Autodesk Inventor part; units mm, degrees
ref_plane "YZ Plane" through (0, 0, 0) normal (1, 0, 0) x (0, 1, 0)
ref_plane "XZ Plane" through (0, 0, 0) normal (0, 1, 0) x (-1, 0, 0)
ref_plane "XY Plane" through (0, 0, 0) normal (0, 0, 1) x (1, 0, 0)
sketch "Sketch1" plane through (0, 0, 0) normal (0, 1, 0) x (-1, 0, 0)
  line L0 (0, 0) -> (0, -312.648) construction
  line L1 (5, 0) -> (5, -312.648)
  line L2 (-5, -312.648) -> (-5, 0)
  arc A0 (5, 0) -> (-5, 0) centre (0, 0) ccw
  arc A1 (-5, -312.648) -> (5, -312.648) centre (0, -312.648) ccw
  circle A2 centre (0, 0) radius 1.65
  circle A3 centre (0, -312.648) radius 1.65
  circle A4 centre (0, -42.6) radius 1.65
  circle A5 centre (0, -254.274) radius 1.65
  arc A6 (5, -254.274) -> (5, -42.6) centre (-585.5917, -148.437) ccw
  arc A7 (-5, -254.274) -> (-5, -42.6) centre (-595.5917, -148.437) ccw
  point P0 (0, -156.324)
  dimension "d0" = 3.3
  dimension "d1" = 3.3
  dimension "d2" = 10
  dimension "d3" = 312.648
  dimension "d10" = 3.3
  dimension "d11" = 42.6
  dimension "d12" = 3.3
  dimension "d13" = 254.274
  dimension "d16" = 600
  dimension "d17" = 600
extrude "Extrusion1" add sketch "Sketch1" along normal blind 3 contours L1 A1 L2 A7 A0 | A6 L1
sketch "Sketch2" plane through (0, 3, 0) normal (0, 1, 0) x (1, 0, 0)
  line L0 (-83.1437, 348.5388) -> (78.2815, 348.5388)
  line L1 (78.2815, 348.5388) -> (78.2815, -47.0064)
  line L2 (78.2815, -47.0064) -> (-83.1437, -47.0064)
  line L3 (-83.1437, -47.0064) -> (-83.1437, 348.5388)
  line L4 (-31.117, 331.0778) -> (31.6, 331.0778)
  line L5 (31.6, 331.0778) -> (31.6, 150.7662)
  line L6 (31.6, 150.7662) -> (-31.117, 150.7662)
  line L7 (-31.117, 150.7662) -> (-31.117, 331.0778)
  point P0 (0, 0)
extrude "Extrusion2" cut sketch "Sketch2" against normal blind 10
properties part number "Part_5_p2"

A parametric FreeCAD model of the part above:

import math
import FreeCAD as App
import Part
import Sketcher
from FreeCAD import Vector
Q = App.Units.Quantity


def add_polygon(sketch, points):
    """Adds a closed chain of lines whose ends are joined by coincident constraints."""
    first, n = sketch.GeometryCount, len(points)
    for a, b in zip(points, points[1:] + points[:1]):
        sketch.addGeometry(Part.LineSegment(App.Vector(*a, 0), App.Vector(*b, 0)), False)
    for i in range(n):
        sketch.addConstraint(Sketcher.Constraint("Coincident", first + i, 2, first + (i + 1) % n, 1))

doc = App.newDocument("Part")
body = doc.addObject("PartDesign::Body", "Body")

# Sketch on XZ plane
sketch1 = body.newObject("Sketcher::SketchObject", "Sketch")
sketch1.AttachmentSupport = (doc.getObject("XZ_Plane"), [""])
sketch1.MapMode = "FlatFace"
sketch1.addGeometry([
    Part.LineSegment(Vector(-5, -42.6, 0), Vector(-5, 0, 0)),  # 0
    Part.ArcOfCircle(Part.Circle(Vector(0, 0, 0), Vector(0, 0, 1), 5), math.radians(0), math.radians(180)),  # 1
    Part.LineSegment(Vector(5, 0, 0), Vector(5, -42.6, 0)),  # 2
    Part.ArcOfCircle(Part.Circle(Vector(595.6, -148.4, 0), Vector(0, 0, 1), 600), math.radians(170), math.radians(190)),  # 3
    Part.LineSegment(Vector(5, -254.3, 0), Vector(5, -312.6, 0)),  # 4
    Part.ArcOfCircle(Part.Circle(Vector(0, -312.6, 0), Vector(0, 0, 1), 5), math.radians(180), math.radians(360)),  # 5
    Part.LineSegment(Vector(-5, -312.6, 0), Vector(-5, -254.3, 0)),  # 6
    Part.ArcOfCircle(Part.Circle(Vector(585.6, -148.4, 0), Vector(0, 0, 1), 600), math.radians(170), math.radians(190)),  # 7
    Part.Circle(Vector(0, -312.6, 0), Vector(0, 0, 1), 1.6),  # 8
    Part.Circle(Vector(0, -254.3, 0), Vector(0, 0, 1), 1.6),  # 9
    Part.Circle(Vector(0, -42.6, 0), Vector(0, 0, 1), 1.6),  # 10
    Part.Circle(Vector(0, 0, 0), Vector(0, 0, 1), 1.6),  # 11
], False)
sketch1.addConstraint([
    Sketcher.Constraint("Tangent", 0, 2, 1, 2),
    Sketcher.Constraint("Tangent", 1, 1, 2, 1),
    Sketcher.Constraint("Coincident", 2, 2, 3, 1),
    Sketcher.Constraint("Coincident", 3, 2, 4, 1),
    Sketcher.Constraint("Tangent", 4, 2, 5, 2),
    Sketcher.Constraint("Tangent", 5, 1, 6, 1),
    Sketcher.Constraint("Coincident", 6, 2, 7, 2),
    Sketcher.Constraint("Coincident", 7, 1, 0, 1),
    Sketcher.Constraint("Vertical", 0),
    Sketcher.Constraint("Vertical", 2),
    Sketcher.Constraint("Vertical", 4),
    Sketcher.Constraint("Vertical", 6),
    Sketcher.Constraint("Coincident", 1, 3, -1, 1),
    Sketcher.Constraint("Coincident", 11, 3, -1, 1),
    Sketcher.Constraint("Coincident", 8, 3, 5, 3),
    Sketcher.Constraint("Equal", 1, 5),
    Sketcher.Constraint("Equal", 3, 7),
    Sketcher.Constraint("Equal", 8, 9),
    Sketcher.Constraint("Equal", 9, 10),
    Sketcher.Constraint("Equal", 10, 11),
    Sketcher.Constraint("Symmetric", 3, 2, 6, 2, -2),
    Sketcher.Constraint("PointOnObject", 9, 3, -2),
    Sketcher.Constraint("PointOnObject", 10, 3, -2),
    Sketcher.Constraint("Horizontal", 3, 3, 7, 3),
    Sketcher.Constraint("Horizontal", 10, 3, 2, 2),
    Sketcher.Constraint("Horizontal", 9, 3, 3, 2),
    Sketcher.Constraint("Radius", 1, Q("5 mm")),
    Sketcher.Constraint("Radius", 3, Q("600 mm")),
    Sketcher.Constraint("Diameter", 8, Q("3.3 mm")),
    Sketcher.Constraint("DistanceY", 0, 1, 0, 2, Q("42.6 mm")),
    Sketcher.Constraint("DistanceY", 5, 3, -1, 1, Q("312.648 mm")),
    Sketcher.Constraint("DistanceY", 9, 3, -1, 1, Q("254.274 mm")),
])
pad1 = body.newObject("PartDesign::Pad", "Pad")
pad1.Profile = sketch1
pad1.Length = 3
pad1.Reversed = True

# Sketch on XZ plane
sketch2 = body.newObject("Sketcher::SketchObject", "Sketch001")
sketch2.AttachmentSupport = (doc.getObject("XZ_Plane"), [""])
sketch2.MapMode = "FlatFace"
sketch2.AttachmentOffset = App.Placement(Vector(0, 0, -3), App.Rotation())
add_polygon(sketch2, [(78, -349), (-83, -349), (-83, 47), (78, 47)])  # lines 0-3
add_polygon(sketch2, [(-31, -151), (-31, -331), (32, -331), (32, -151)])  # lines 4-7
sketch2.addConstraint([
    Sketcher.Constraint("Horizontal", 0),
    Sketcher.Constraint("Vertical", 1),
    Sketcher.Constraint("Horizontal", 2),
    Sketcher.Constraint("Vertical", 3),
    Sketcher.Constraint("Vertical", 4),
    Sketcher.Constraint("Horizontal", 5),
    Sketcher.Constraint("Vertical", 6),
    Sketcher.Constraint("Horizontal", 7),
    Sketcher.Constraint("DistanceX", -1, 1, 5, 2, Q("31.6 mm")),
    Sketcher.Constraint("DistanceX", 5, 1, 5, 2, Q("62.717 mm")),
    Sketcher.Constraint("DistanceX", 0, 2, 0, 1, Q("161.4252 mm")),
    Sketcher.Constraint("DistanceY", 1, 1, 1, 2, Q("395.5452 mm")),
    Sketcher.Constraint("DistanceY", 4, 2, 4, 1, Q("180.3116 mm")),
    Sketcher.Constraint("DistanceY", 0, 2, 4, 2, Q("17.461 mm")),
    Sketcher.Constraint("DistanceX", 0, 2, -1, 1, Q("83.1437 mm")),
    Sketcher.Constraint("DistanceY", 0, 2, -1, 1, Q("348.5388 mm")),
])
pocket1 = body.newObject("PartDesign::Pocket", "Pocket")
pocket1.Profile = sketch2
pocket1.Length = 10
pocket1.Reversed = True

doc.recompute()
